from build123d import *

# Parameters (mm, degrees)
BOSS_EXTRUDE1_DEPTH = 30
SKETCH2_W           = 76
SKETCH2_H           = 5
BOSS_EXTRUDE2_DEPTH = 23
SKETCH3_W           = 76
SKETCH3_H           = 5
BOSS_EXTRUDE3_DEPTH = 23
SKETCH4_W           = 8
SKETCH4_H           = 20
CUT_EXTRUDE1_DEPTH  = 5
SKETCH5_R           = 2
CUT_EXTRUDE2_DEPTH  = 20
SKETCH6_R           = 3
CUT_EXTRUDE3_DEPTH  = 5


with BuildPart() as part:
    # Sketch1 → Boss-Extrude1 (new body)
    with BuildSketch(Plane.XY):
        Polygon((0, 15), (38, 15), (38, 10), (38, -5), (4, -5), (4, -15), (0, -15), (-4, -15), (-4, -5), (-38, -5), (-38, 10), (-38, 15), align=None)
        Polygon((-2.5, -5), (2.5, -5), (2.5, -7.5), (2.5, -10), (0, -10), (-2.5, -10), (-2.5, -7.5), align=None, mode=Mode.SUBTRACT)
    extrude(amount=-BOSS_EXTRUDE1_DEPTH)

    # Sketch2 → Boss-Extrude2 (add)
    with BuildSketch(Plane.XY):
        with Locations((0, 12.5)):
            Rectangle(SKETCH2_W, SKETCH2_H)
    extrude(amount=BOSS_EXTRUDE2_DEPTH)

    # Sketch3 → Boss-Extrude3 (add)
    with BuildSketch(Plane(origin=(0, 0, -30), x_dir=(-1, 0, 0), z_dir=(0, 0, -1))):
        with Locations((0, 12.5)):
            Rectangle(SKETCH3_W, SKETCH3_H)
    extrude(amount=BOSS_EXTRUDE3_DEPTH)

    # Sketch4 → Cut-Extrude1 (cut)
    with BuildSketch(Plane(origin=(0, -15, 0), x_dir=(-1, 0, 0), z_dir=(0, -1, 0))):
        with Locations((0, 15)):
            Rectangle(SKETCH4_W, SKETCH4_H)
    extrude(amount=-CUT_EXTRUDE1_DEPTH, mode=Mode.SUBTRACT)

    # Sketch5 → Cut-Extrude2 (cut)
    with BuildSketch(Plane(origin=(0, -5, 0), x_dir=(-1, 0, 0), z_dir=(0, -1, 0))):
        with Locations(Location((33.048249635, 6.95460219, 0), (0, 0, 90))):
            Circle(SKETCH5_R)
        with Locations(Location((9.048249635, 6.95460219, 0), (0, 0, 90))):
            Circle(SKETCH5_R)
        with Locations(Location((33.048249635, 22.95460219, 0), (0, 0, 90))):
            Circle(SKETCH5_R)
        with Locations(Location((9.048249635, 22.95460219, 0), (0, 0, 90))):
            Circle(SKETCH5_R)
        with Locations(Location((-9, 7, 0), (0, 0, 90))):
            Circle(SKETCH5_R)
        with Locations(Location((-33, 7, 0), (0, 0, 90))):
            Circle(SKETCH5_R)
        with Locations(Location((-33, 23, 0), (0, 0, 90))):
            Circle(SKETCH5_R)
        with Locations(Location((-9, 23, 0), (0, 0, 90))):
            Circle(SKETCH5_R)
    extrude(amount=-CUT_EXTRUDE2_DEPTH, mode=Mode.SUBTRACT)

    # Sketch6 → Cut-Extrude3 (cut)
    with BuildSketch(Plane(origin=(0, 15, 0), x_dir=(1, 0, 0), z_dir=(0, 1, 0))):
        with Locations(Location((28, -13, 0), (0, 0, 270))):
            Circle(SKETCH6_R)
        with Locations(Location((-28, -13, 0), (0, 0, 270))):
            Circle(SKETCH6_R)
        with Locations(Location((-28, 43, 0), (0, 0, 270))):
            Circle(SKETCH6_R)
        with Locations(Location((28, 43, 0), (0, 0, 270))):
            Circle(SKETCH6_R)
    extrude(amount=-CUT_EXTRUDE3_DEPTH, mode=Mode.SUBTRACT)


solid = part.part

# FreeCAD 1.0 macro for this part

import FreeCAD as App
import Part
import Sketcher
Q = App.Units.Quantity


def add_polygon(sketch, points):
    """Adds a closed chain of lines whose ends are joined by coincident constraints."""
    first, n = sketch.GeometryCount, len(points)
    for a, b in zip(points, points[1:] + points[:1]):
        sketch.addGeometry(Part.LineSegment(App.Vector(*a, 0), App.Vector(*b, 0)), False)
    for i in range(n):
        sketch.addConstraint(Sketcher.Constraint("Coincident", first + i, 2, first + (i + 1) % n, 1))

doc = App.newDocument("Part")
params = doc.addObject("Spreadsheet::Sheet", "Params")
for row, (alias, value) in enumerate([
    ("sketch1_width", "76 mm"),
    ("sketch1_width2", "34 mm"),
    ("sketch1_width3", "5 mm"),
    ("sketch1_height", "20 mm"),
    ("sketch1_height2", "10 mm"),
    ("pad1_length", "30 mm"),
    ("sketch2_width", "76 mm"),
    ("sketch2_height", "5 mm"),
    ("pad2_length", "23 mm"),
    ("sketch3_width", "76 mm"),
    ("sketch3_height", "5 mm"),
    ("pad3_length", "23 mm"),
    ("sketch4_width", "8 mm"),
    ("sketch4_height", "20 mm"),
    ("pocket1_length", "5 mm"),
    ("sketch5_diameter", "4 mm"),
    ("pocket2_length", "20 mm"),
    ("sketch6_diameter", "6 mm"),
    ("pocket3_length", "5 mm"),
], start=1):
    params.set(f"A{row}", alias)
    params.set(f"B{row}", "=" + value)
    params.setAlias(f"B{row}", alias)

body = doc.addObject("PartDesign::Body", "Body")

sketch1 = doc.addObject("Sketcher::SketchObject", "Sketch")
body.addObject(sketch1)
sketch1.AttachmentSupport = (doc.XY_Plane, [""])
sketch1.MapMode = "FlatFace"
add_polygon(sketch1, [(38, 15), (-38, 15), (-38, -5), (-4, -5), (-4, -15), (4, -15), (4, -5), (38, -5)])
add_polygon(sketch1, [(-2.5, -5), (2.5, -5), (2.5, -10), (-2.5, -10)])
sketch1.addConstraint(Sketcher.Constraint("Horizontal", 0))
sketch1.addConstraint(Sketcher.Constraint("Vertical", 1))
sketch1.addConstraint(Sketcher.Constraint("Horizontal", 2))
sketch1.addConstraint(Sketcher.Constraint("Vertical", 3))
sketch1.addConstraint(Sketcher.Constraint("Horizontal", 4))
sketch1.addConstraint(Sketcher.Constraint("Vertical", 5))
sketch1.addConstraint(Sketcher.Constraint("Horizontal", 6))
sketch1.addConstraint(Sketcher.Constraint("Vertical", 7))
sketch1.addConstraint(Sketcher.Constraint("Horizontal", 8))
sketch1.addConstraint(Sketcher.Constraint("Vertical", 9))
sketch1.addConstraint(Sketcher.Constraint("Horizontal", 10))
sketch1.addConstraint(Sketcher.Constraint("Vertical", 11))
sketch1.addConstraint(Sketcher.Constraint("Symmetric", 2, 2, 5, 2, -2))
sketch1.addConstraint(Sketcher.Constraint("Horizontal", 6, 2, 8, 2))
sketch1.addConstraint(Sketcher.Constraint("Equal", 2, 6))
sketch1.addConstraint(Sketcher.Constraint("Equal", 10, 9))
sketch1.addConstraint(Sketcher.Constraint("DistanceX", 0, 2, 0, 1, Q("76 mm")))
sketch1.addConstraint(Sketcher.Constraint("DistanceX", 2, 1, 2, 2, Q("34 mm")))
sketch1.addConstraint(Sketcher.Constraint("DistanceX", 8, 1, 8, 2, Q("5 mm")))
sketch1.addConstraint(Sketcher.Constraint("DistanceY", 1, 2, 1, 1, Q("20 mm")))
sketch1.addConstraint(Sketcher.Constraint("DistanceY", 3, 2, 3, 1, Q("10 mm")))
sketch1.addConstraint(Sketcher.Constraint("DistanceY", -1, 1, 0, 2, Q("15 mm")))
sketch1.addConstraint(Sketcher.Constraint("DistanceX", -1, 1, 8, 2, Q("2.5 mm")))
sketch1.setExpression("Constraints[28]", "Params.sketch1_width")
sketch1.setExpression("Constraints[29]", "Params.sketch1_width2")
sketch1.setExpression("Constraints[30]", "Params.sketch1_width3")
sketch1.setExpression("Constraints[31]", "Params.sketch1_height")
sketch1.setExpression("Constraints[32]", "Params.sketch1_height2")
pad1 = doc.addObject("PartDesign::Pad", "Pad")
body.addObject(pad1)
pad1.Profile = sketch1
pad1.setExpression("Length", "Params.pad1_length")
pad1.Reversed = True

sketch2 = doc.addObject("Sketcher::SketchObject", "Sketch001")
body.addObject(sketch2)
sketch2.AttachmentSupport = (doc.XY_Plane, [""])
sketch2.MapMode = "FlatFace"
add_polygon(sketch2, [(-38, 15), (-38, 10), (38, 10), (38, 15)])
sketch2.addConstraint(Sketcher.Constraint("Vertical", 0))
sketch2.addConstraint(Sketcher.Constraint("Horizontal", 1))
sketch2.addConstraint(Sketcher.Constraint("Vertical", 2))
sketch2.addConstraint(Sketcher.Constraint("Horizontal", 3))
sketch2.addConstraint(Sketcher.Constraint("DistanceX", 1, 1, 1, 2, Q("76 mm")))
sketch2.addConstraint(Sketcher.Constraint("DistanceY", 0, 2, 0, 1, Q("5 mm")))
sketch2.addConstraint(Sketcher.Constraint("DistanceX", 0, 2, -1, 1, Q("38 mm")))
sketch2.addConstraint(Sketcher.Constraint("DistanceY", -1, 1, 0, 2, Q("10 mm")))
sketch2.setExpression("Constraints[8]", "Params.sketch2_width")
sketch2.setExpression("Constraints[9]", "Params.sketch2_height")
pad2 = doc.addObject("PartDesign::Pad", "Pad001")
body.addObject(pad2)
pad2.Profile = sketch2
pad2.setExpression("Length", "Params.pad2_length")

sketch3 = doc.addObject("Sketcher::SketchObject", "Sketch002")
body.addObject(sketch3)
sketch3.AttachmentSupport = (doc.XY_Plane, [""])
sketch3.MapMode = "FlatFace"
sketch3.AttachmentOffset = App.Placement(App.Vector(0, 0, -30), App.Rotation())
add_polygon(sketch3, [(38, 15), (38, 10), (-38, 10), (-38, 15)])
sketch3.addConstraint(Sketcher.Constraint("Vertical", 0))
sketch3.addConstraint(Sketcher.Constraint("Horizontal", 1))
sketch3.addConstraint(Sketcher.Constraint("Vertical", 2))
sketch3.addConstraint(Sketcher.Constraint("Horizontal", 3))
sketch3.addConstraint(Sketcher.Constraint("DistanceX", 1, 2, 1, 1, Q("76 mm")))
sketch3.addConstraint(Sketcher.Constraint("DistanceY", 0, 2, 0, 1, Q("5 mm")))
sketch3.addConstraint(Sketcher.Constraint("DistanceX", -1, 1, 0, 2, Q("38 mm")))
sketch3.addConstraint(Sketcher.Constraint("DistanceY", -1, 1, 0, 2, Q("10 mm")))
sketch3.setExpression("Constraints[8]", "Params.sketch3_width")
sketch3.setExpression("Constraints[9]", "Params.sketch3_height")
pad3 = doc.addObject("PartDesign::Pad", "Pad002")
body.addObject(pad3)
pad3.Profile = sketch3
pad3.setExpression("Length", "Params.pad3_length")
pad3.Reversed = True

sketch4 = doc.addObject("Sketcher::SketchObject", "Sketch003")
body.addObject(sketch4)
sketch4.AttachmentSupport = (doc.XZ_Plane, [""])
sketch4.MapMode = "FlatFace"
sketch4.AttachmentOffset = App.Placement(App.Vector(0, 0, 15), App.Rotation())
add_polygon(sketch4, [(4, -25), (4, -5), (-4, -5), (-4, -25)])
sketch4.addConstraint(Sketcher.Constraint("Vertical", 0))
sketch4.addConstraint(Sketcher.Constraint("Horizontal", 1))
sketch4.addConstraint(Sketcher.Constraint("Vertical", 2))
sketch4.addConstraint(Sketcher.Constraint("Horizontal", 3))
sketch4.addConstraint(Sketcher.Constraint("DistanceX", 1, 2, 1, 1, Q("8 mm")))
sketch4.addConstraint(Sketcher.Constraint("DistanceY", 0, 1, 0, 2, Q("20 mm")))
sketch4.addConstraint(Sketcher.Constraint("DistanceX", -1, 1, 0, 2, Q("4 mm")))
sketch4.addConstraint(Sketcher.Constraint("DistanceY", 0, 2, -1, 1, Q("5 mm")))
sketch4.setExpression("Constraints[8]", "Params.sketch4_width")
sketch4.setExpression("Constraints[9]", "Params.sketch4_height")
pocket1 = doc.addObject("PartDesign::Pocket", "Pocket")
body.addObject(pocket1)
pocket1.Profile = sketch4
pocket1.setExpression("Length", "Params.pocket1_length")

sketch5 = doc.addObject("Sketcher::SketchObject", "Sketch004")
body.addObject(sketch5)
sketch5.AttachmentSupport = (doc.XZ_Plane, [""])
sketch5.MapMode = "FlatFace"
sketch5.AttachmentOffset = App.Placement(App.Vector(0, 0, 5), App.Rotation())
sketch5.addGeometry(Part.Circle(App.Vector(-33.04825, -6.954602, 0), App.Vector(0, 0, 1), 2), False)
sketch5.addGeometry(Part.Circle(App.Vector(-9.04825, -6.954602, 0), App.Vector(0, 0, 1), 2), False)
sketch5.addGeometry(Part.Circle(App.Vector(-33.04825, -22.954602, 0), App.Vector(0, 0, 1), 2), False)
sketch5.addGeometry(Part.Circle(App.Vector(-9.04825, -22.954602, 0), App.Vector(0, 0, 1), 2), False)
sketch5.addGeometry(Part.Circle(App.Vector(9, -7, 0), App.Vector(0, 0, 1), 2), False)
sketch5.addGeometry(Part.Circle(App.Vector(33, -7, 0), App.Vector(0, 0, 1), 2), False)
sketch5.addGeometry(Part.Circle(App.Vector(33, -23, 0), App.Vector(0, 0, 1), 2), False)
sketch5.addGeometry(Part.Circle(App.Vector(9, -23, 0), App.Vector(0, 0, 1), 2), False)
sketch5.addConstraint(Sketcher.Constraint("Equal", 0, 1))
sketch5.addConstraint(Sketcher.Constraint("Equal", 1, 2))
sketch5.addConstraint(Sketcher.Constraint("Equal", 2, 3))
sketch5.addConstraint(Sketcher.Constraint("Equal", 3, 4))
sketch5.addConstraint(Sketcher.Constraint("Equal", 4, 5))
sketch5.addConstraint(Sketcher.Constraint("Equal", 5, 6))
sketch5.addConstraint(Sketcher.Constraint("Equal", 6, 7))
sketch5.addConstraint(Sketcher.Constraint("Horizontal", 0, 3, 1, 3))
sketch5.addConstraint(Sketcher.Constraint("Horizontal", 2, 3, 3, 3))
sketch5.addConstraint(Sketcher.Constraint("Horizontal", 4, 3, 5, 3))
sketch5.addConstraint(Sketcher.Constraint("Horizontal", 6, 3, 7, 3))
sketch5.addConstraint(Sketcher.Constraint("Vertical", 0, 3, 2, 3))
sketch5.addConstraint(Sketcher.Constraint("Vertical", 1, 3, 3, 3))
sketch5.addConstraint(Sketcher.Constraint("Vertical", 5, 3, 6, 3))
sketch5.addConstraint(Sketcher.Constraint("Vertical", 4, 3, 7, 3))
sketch5.addConstraint(Sketcher.Constraint("Diameter", 0, Q("4 mm")))
sketch5.addConstraint(Sketcher.Constraint("DistanceX", -1, 1, 4, 3, Q("9 mm")))
sketch5.addConstraint(Sketcher.Constraint("DistanceY", 4, 3, -1, 1, Q("7 mm")))
sketch5.addConstraint(Sketcher.Constraint("DistanceX", -1, 1, 5, 3, Q("33 mm")))
sketch5.addConstraint(Sketcher.Constraint("DistanceY", 6, 3, -1, 1, Q("23 mm")))
sketch5.addConstraint(Sketcher.Constraint("DistanceX", 0, 3, 1, 3, Q("24 mm")))
sketch5.addConstraint(Sketcher.Constraint("DistanceY", 2, 3, 0, 3, Q("16 mm")))
sketch5.addConstraint(Sketcher.Constraint("DistanceX", 0, 3, -1, 1, Q("33.04825 mm")))
sketch5.addConstraint(Sketcher.Constraint("DistanceY", 0, 3, -1, 1, Q("6.954602 mm")))
sketch5.setExpression("Constraints[15]", "Params.sketch5_diameter")
pocket2 = doc.addObject("PartDesign::Pocket", "Pocket001")
body.addObject(pocket2)
pocket2.Profile = sketch5
pocket2.setExpression("Length", "Params.pocket2_length")

sketch6 = doc.addObject("Sketcher::SketchObject", "Sketch005")
body.addObject(sketch6)
sketch6.AttachmentSupport = (doc.XZ_Plane, [""])
sketch6.MapMode = "FlatFace"
sketch6.AttachmentOffset = App.Placement(App.Vector(0, 0, -15), App.Rotation())
sketch6.addGeometry(Part.Circle(App.Vector(28, 13, 0), App.Vector(0, 0, 1), 3), False)
sketch6.addGeometry(Part.Circle(App.Vector(-28, 13, 0), App.Vector(0, 0, 1), 3), False)
sketch6.addGeometry(Part.Circle(App.Vector(-28, -43, 0), App.Vector(0, 0, 1), 3), False)
sketch6.addGeometry(Part.Circle(App.Vector(28, -43, 0), App.Vector(0, 0, 1), 3), False)
sketch6.addConstraint(Sketcher.Constraint("Equal", 0, 1))
sketch6.addConstraint(Sketcher.Constraint("Equal", 1, 2))
sketch6.addConstraint(Sketcher.Constraint("Equal", 2, 3))
sketch6.addConstraint(Sketcher.Constraint("Symmetric", 0, 3, 1, 3, -2))
sketch6.addConstraint(Sketcher.Constraint("Symmetric", 2, 3, 3, 3, -2))
sketch6.addConstraint(Sketcher.Constraint("Vertical", 1, 3, 2, 3))
sketch6.addConstraint(Sketcher.Constraint("Diameter", 0, Q("6 mm")))
sketch6.addConstraint(Sketcher.Constraint("DistanceX", -1, 1, 0, 3, Q("28 mm")))
sketch6.addConstraint(Sketcher.Constraint("DistanceY", -1, 1, 0, 3, Q("13 mm")))
sketch6.addConstraint(Sketcher.Constraint("DistanceY", 2, 3, -1, 1, Q("43 mm")))
sketch6.setExpression("Constraints[6]", "Params.sketch6_diameter")
pocket3 = doc.addObject("PartDesign::Pocket", "Pocket002")
body.addObject(pocket3)
pocket3.Profile = sketch6
pocket3.setExpression("Length", "Params.pocket3_length")
pocket3.Reversed = True

doc.recompute()
